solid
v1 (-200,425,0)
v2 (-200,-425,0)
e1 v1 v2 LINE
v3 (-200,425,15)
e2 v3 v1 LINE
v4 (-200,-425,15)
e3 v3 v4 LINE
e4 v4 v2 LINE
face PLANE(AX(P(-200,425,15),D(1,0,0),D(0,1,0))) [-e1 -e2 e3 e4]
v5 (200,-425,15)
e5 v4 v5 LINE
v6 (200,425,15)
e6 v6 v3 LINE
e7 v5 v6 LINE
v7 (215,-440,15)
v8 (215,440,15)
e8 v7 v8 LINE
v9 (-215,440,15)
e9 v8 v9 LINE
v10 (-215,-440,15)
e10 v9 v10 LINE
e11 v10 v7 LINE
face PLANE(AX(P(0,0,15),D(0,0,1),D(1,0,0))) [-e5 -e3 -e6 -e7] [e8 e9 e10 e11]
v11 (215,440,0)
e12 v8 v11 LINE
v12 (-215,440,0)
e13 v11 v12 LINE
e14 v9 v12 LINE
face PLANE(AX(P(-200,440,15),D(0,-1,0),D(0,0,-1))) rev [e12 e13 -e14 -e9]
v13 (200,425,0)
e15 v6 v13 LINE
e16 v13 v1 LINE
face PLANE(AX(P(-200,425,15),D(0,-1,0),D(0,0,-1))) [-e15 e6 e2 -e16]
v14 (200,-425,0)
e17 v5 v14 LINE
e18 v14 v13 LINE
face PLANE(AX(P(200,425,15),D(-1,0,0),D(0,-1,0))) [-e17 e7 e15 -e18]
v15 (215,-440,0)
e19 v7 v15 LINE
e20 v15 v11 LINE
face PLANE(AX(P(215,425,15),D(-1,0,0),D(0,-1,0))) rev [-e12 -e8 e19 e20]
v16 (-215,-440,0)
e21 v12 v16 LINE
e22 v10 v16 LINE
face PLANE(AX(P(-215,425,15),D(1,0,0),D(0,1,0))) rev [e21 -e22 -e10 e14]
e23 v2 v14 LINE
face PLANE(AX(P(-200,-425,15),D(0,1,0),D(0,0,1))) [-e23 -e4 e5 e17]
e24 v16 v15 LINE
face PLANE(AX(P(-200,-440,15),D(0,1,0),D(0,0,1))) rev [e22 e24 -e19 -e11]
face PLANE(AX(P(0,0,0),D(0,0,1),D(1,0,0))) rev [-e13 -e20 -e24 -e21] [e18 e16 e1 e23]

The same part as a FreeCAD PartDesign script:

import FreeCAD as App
import Part
import Sketcher

V = App.Vector
Q = App.Units.Quantity

doc = App.newDocument("Part")
body = doc.addObject("PartDesign::Body", "Body")

sketch1 = body.newObject("Sketcher::SketchObject", "Sketch")
sketch1.AttachmentSupport = (doc.getObject("XY_Plane"), [""])
sketch1.MapMode = "FlatFace"
sketch1.addGeometry([
    Part.LineSegment(V(-215, 440, 0), V(-215, -440, 0)),
    Part.LineSegment(V(-215, -440, 0), V(215, -440, 0)),
    Part.LineSegment(V(215, -440, 0), V(215, 440, 0)),
    Part.LineSegment(V(215, 440, 0), V(-215, 440, 0)),
    Part.LineSegment(V(200, -425, 0), V(-200, -425, 0)),
    Part.LineSegment(V(-200, -425, 0), V(-200, 425, 0)),
    Part.LineSegment(V(-200, 425, 0), V(200, 425, 0)),
    Part.LineSegment(V(200, 425, 0), V(200, -425, 0)),
], False)
sketch1.addConstraint([
    Sketcher.Constraint("Coincident", 0, 2, 1, 1),
    Sketcher.Constraint("Coincident", 1, 2, 2, 1),
    Sketcher.Constraint("Coincident", 2, 2, 3, 1),
    Sketcher.Constraint("Coincident", 3, 2, 0, 1),
    Sketcher.Constraint("Coincident", 4, 2, 5, 1),
    Sketcher.Constraint("Coincident", 5, 2, 6, 1),
    Sketcher.Constraint("Coincident", 6, 2, 7, 1),
    Sketcher.Constraint("Coincident", 7, 2, 4, 1),
    Sketcher.Constraint("Vertical", 0),
    Sketcher.Constraint("Horizontal", 1),
    Sketcher.Constraint("Vertical", 2),
    Sketcher.Constraint("Horizontal", 3),
    Sketcher.Constraint("Horizontal", 4),
    Sketcher.Constraint("Vertical", 5),
    Sketcher.Constraint("Horizontal", 6),
    Sketcher.Constraint("Vertical", 7),
    Sketcher.Constraint("Symmetric", 0, 2, 2, 2, -1, 1),
    Sketcher.Constraint("Symmetric", 4, 2, 6, 2, -1, 1),
    Sketcher.Constraint("DistanceX", 1, 1, 1, 2, Q("430 mm")),
    Sketcher.Constraint("DistanceX", 4, 2, 4, 1, Q("400 mm")),
    Sketcher.Constraint("DistanceY", 0, 2, 0, 1, Q("880 mm")),
    Sketcher.Constraint("DistanceY", 5, 1, 5, 2, Q("850 mm")),
])
pad1 = body.newObject("PartDesign::Pad", "Pad")
pad1.Profile = sketch1
pad1.Length = 15

doc.recompute()
